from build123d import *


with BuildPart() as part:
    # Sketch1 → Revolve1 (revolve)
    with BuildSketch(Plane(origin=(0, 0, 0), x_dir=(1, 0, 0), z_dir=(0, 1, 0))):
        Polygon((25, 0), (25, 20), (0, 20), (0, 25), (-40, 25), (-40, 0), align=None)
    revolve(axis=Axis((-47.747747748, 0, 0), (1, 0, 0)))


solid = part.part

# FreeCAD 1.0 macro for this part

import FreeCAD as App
import Part
import Sketcher

V = App.Vector
Q = App.Units.Quantity

doc = App.newDocument("Part")
params = doc.addObject("Spreadsheet::Sheet", "Params")
for row, (alias, value) in enumerate([
    ("sketch1_width", "25 mm"),
    ("sketch1_width2", "40 mm"),
    ("sketch1_height", "20 mm"),
    ("revolution_angle", "360 deg"),
], start=1):
    params.set(f"A{row}", alias)
    params.set(f"B{row}", "=" + value)
    params.setAlias(f"B{row}", alias)

body = doc.addObject("PartDesign::Body", "Body")

# Sketch on XZ plane
sketch1 = doc.addObject("Sketcher::SketchObject", "Sketch")
body.addObject(sketch1)
sketch1.AttachmentSupport = (doc.XZ_Plane, [""])
sketch1.MapMode = "FlatFace"
sketch1.addGeometry(Part.LineSegment(V(25, 0, 0), V(25, -20, 0)), False)
sketch1.addGeometry(Part.LineSegment(V(25, -20, 0), V(0, -20, 0)), False)
sketch1.addGeometry(Part.LineSegment(V(0, -20, 0), V(0, -25, 0)), False)
sketch1.addGeometry(Part.LineSegment(V(0, -25, 0), V(-40, -25, 0)), False)
sketch1.addGeometry(Part.LineSegment(V(-40, -25, 0), V(-40, 0, 0)), False)
sketch1.addGeometry(Part.LineSegment(V(-40, 0, 0), V(25, 0, 0)), False)
sketch1.addConstraint(Sketcher.Constraint("Coincident", 0, 2, 1, 1))
sketch1.addConstraint(Sketcher.Constraint("Coincident", 1, 2, 2, 1))
sketch1.addConstraint(Sketcher.Constraint("Coincident", 2, 2, 3, 1))
sketch1.addConstraint(Sketcher.Constraint("Coincident", 3, 2, 4, 1))
sketch1.addConstraint(Sketcher.Constraint("Coincident", 4, 2, 5, 1))
sketch1.addConstraint(Sketcher.Constraint("Coincident", 5, 2, 0, 1))
sketch1.addConstraint(Sketcher.Constraint("Vertical", 0))
sketch1.addConstraint(Sketcher.Constraint("Horizontal", 1))
sketch1.addConstraint(Sketcher.Constraint("Vertical", 2))
sketch1.addConstraint(Sketcher.Constraint("Horizontal", 3))
sketch1.addConstraint(Sketcher.Constraint("Vertical", 4))
sketch1.addConstraint(Sketcher.Constraint("Horizontal", 5))
sketch1.addConstraint(Sketcher.Constraint("PointOnObject", 1, 2, -2))
sketch1.addConstraint(Sketcher.Constraint("PointOnObject", 4, 2, -1))
sketch1.addConstraint(Sketcher.Constraint("Equal", 1, 4))
sketch1.addConstraint(Sketcher.Constraint("DistanceX", 1, 2, 1, 1, Q("25 mm")))
sketch1.addConstraint(Sketcher.Constraint("DistanceX", 3, 2, 3, 1, Q("40 mm")))
sketch1.addConstraint(Sketcher.Constraint("DistanceY", 0, 2, 0, 1, Q("20 mm")))
sketch1.setExpression("Constraints[15]", "Params.sketch1_width")
sketch1.setExpression("Constraints[16]", "Params.sketch1_width2")
sketch1.setExpression("Constraints[17]", "Params.sketch1_height")
revolution = doc.addObject("PartDesign::Revolution", "Revolution")
body.addObject(revolution)
revolution.Profile = sketch1
revolution.ReferenceAxis = (sketch1, ["H_Axis"])
revolution.setExpression("Angle", "Params.revolution_angle")

doc.recompute()
